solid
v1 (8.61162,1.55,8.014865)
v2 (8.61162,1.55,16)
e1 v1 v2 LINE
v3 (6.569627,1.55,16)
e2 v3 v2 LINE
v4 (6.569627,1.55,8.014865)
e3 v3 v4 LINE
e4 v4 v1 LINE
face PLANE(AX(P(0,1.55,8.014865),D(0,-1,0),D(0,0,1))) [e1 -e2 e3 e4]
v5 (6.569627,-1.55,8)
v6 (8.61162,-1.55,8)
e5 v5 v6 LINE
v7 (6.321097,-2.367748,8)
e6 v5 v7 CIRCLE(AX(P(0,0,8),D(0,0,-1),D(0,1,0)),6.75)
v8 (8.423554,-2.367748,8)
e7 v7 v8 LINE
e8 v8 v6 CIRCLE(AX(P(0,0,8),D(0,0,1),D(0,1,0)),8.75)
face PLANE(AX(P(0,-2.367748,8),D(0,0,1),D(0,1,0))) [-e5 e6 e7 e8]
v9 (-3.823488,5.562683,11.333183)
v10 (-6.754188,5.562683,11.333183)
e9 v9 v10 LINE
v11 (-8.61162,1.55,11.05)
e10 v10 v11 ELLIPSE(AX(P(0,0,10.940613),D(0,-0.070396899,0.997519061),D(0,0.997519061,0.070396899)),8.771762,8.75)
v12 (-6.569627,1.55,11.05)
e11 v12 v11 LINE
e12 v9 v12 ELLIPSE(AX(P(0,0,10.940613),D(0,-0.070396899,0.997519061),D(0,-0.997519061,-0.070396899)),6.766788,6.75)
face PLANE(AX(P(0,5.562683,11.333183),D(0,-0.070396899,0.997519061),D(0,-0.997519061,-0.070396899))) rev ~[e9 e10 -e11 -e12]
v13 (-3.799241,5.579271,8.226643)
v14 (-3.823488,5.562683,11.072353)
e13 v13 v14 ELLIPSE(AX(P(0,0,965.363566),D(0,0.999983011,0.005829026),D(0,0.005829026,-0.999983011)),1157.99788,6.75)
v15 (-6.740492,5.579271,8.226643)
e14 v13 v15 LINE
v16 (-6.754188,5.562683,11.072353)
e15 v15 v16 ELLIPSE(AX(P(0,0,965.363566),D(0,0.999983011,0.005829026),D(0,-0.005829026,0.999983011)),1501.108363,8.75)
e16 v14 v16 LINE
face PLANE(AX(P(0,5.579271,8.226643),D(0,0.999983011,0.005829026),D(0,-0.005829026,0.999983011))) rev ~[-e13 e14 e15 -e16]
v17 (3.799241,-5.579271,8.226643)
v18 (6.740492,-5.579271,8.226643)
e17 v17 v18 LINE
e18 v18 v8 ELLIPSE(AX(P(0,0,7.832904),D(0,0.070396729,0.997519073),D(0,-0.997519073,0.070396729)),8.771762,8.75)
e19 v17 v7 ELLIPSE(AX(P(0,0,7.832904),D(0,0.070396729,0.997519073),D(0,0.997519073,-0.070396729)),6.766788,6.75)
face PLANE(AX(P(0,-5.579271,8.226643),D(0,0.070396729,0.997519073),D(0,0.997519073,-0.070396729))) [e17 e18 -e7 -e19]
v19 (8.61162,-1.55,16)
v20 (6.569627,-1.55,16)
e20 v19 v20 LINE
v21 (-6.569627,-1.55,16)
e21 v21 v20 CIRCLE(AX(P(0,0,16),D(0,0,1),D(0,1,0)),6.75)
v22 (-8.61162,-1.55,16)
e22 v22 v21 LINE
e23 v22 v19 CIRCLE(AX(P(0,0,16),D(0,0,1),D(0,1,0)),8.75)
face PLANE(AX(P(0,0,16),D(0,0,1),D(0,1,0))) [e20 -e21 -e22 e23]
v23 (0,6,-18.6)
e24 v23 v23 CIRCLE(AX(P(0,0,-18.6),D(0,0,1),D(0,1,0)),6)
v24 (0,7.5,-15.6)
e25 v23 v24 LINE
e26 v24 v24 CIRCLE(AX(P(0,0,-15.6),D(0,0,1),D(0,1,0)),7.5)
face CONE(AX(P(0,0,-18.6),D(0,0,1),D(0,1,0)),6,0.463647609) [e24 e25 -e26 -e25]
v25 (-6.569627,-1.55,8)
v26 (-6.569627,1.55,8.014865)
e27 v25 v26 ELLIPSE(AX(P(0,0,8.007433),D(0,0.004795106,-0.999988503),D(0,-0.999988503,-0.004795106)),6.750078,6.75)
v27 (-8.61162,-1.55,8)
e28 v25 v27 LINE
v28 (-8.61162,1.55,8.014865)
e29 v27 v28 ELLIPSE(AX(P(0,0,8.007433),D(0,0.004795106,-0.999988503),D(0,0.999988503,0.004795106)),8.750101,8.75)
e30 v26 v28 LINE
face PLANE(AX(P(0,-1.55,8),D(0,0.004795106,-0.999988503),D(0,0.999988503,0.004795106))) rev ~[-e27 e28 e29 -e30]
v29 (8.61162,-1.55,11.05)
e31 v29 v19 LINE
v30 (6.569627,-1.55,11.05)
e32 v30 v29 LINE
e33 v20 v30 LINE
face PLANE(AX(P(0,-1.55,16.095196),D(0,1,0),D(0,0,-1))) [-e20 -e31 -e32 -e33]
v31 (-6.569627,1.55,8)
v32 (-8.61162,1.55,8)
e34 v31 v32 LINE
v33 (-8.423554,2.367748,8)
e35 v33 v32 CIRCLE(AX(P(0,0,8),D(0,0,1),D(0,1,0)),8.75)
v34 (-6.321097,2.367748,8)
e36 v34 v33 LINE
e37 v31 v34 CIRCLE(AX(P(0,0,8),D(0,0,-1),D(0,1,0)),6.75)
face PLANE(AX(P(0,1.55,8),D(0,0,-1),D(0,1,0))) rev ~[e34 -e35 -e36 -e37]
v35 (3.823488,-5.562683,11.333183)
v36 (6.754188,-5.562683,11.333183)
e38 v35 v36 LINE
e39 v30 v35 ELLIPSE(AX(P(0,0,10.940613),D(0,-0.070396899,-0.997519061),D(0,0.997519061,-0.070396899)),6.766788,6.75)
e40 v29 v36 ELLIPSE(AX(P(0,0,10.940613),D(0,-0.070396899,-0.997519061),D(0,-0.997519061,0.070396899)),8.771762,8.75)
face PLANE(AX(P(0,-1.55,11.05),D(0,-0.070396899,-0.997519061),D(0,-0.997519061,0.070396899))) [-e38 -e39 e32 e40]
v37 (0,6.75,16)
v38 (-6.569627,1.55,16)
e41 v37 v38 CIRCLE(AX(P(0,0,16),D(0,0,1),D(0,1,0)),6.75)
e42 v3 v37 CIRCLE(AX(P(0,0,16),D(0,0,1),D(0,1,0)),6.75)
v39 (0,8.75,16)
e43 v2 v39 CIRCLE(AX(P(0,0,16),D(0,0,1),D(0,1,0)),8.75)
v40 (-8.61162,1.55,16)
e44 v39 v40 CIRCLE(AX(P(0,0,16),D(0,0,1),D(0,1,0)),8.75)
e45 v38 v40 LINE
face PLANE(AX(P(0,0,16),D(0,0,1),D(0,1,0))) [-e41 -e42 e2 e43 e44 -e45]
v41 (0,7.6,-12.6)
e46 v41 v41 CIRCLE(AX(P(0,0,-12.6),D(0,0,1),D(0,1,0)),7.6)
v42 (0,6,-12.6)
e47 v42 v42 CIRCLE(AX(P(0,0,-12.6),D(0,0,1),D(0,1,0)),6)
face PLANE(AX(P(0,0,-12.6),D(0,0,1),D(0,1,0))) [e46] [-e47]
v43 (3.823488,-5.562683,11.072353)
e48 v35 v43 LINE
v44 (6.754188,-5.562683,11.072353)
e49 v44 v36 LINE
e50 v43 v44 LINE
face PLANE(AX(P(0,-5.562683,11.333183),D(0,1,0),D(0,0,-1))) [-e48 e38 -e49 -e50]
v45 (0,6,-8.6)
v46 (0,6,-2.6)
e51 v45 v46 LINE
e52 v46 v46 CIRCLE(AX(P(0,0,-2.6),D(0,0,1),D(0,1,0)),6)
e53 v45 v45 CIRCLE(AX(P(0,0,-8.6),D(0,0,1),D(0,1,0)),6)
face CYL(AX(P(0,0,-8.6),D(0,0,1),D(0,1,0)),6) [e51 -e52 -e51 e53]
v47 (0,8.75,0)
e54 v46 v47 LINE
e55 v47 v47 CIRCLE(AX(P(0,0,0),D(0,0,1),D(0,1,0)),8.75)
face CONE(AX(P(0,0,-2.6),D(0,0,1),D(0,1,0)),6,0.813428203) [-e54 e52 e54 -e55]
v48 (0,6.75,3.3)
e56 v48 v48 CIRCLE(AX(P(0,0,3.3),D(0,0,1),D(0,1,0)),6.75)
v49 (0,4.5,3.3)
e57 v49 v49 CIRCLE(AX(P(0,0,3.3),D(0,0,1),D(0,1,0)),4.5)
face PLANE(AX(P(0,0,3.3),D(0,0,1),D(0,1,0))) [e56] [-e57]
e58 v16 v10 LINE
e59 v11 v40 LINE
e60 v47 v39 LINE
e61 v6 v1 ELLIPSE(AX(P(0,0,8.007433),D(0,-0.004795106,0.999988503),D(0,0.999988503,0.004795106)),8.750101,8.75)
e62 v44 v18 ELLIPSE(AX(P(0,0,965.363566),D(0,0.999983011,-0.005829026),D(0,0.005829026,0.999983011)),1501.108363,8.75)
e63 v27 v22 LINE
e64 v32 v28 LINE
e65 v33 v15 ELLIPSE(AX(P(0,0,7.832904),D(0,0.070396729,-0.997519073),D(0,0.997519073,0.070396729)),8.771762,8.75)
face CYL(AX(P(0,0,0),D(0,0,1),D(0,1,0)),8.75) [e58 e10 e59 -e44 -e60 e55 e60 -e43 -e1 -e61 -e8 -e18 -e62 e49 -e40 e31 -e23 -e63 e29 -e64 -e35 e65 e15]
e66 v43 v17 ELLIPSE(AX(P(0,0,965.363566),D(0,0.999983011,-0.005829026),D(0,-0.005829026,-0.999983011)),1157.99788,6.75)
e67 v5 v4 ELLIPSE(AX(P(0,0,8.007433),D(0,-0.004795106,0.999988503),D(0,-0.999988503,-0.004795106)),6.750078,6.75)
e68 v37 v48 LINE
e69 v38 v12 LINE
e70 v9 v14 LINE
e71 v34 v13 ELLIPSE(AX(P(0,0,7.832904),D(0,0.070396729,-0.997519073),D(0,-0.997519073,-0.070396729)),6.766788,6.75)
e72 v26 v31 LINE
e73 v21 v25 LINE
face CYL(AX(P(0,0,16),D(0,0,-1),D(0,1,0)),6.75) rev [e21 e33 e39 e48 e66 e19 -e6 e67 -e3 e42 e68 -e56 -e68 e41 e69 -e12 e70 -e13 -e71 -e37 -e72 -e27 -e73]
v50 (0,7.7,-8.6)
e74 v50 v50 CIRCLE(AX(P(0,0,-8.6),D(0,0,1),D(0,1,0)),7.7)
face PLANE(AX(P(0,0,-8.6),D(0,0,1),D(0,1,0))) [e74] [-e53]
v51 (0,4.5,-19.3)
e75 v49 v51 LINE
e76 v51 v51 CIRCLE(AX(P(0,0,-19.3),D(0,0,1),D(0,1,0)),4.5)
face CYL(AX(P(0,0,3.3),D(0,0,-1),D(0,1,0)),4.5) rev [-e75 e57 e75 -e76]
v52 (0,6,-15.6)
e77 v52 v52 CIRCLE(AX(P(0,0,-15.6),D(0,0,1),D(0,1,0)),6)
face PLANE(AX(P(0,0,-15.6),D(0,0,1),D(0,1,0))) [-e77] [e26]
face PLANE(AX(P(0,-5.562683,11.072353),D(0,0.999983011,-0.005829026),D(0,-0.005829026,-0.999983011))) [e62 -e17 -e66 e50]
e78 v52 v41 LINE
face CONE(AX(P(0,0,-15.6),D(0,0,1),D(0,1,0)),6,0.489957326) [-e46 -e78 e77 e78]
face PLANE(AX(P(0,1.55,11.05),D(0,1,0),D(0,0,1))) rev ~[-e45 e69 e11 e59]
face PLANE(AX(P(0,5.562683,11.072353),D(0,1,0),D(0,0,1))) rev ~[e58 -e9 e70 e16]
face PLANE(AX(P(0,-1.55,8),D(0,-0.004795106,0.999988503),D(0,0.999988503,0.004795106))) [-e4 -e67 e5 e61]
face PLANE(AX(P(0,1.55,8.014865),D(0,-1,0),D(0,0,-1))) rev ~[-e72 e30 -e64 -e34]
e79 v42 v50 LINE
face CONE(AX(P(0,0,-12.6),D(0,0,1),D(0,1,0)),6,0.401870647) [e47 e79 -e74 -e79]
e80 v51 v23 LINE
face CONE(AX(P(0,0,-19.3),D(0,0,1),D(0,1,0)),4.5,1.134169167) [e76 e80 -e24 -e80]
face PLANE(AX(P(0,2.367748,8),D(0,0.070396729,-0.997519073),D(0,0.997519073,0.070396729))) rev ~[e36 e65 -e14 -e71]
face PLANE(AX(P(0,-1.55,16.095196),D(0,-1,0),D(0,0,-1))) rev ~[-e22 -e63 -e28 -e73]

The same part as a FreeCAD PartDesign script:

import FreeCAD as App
import Part
import Sketcher


def add_polygon(sketch, points):
    """Adds a closed chain of lines whose ends are joined by coincident constraints."""
    first, n = sketch.GeometryCount, len(points)
    for a, b in zip(points, points[1:] + points[:1]):
        sketch.addGeometry(Part.LineSegment(App.Vector(*a, 0), App.Vector(*b, 0)), False)
    for i in range(n):
        sketch.addConstraint(Sketcher.Constraint("Coincident", first + i, 2, first + (i + 1) % n, 1))

doc = App.newDocument("Part")
body = doc.addObject("PartDesign::Body", "Body")

sketch1 = doc.addObject("Sketcher::SketchObject", "Sketch")
body.addObject(sketch1)
sketch1.AttachmentSupport = (doc.YZ_Plane, [""])
sketch1.MapMode = "FlatFace"
add_polygon(sketch1, [(6.8, 16), (6.8, 3.3), (4.5, 3.3), (4.5, -19.3), (6, -18.6), (7.5, -15.6), (6, -15.6), (7.6, -12.6), (6, -12.6), (7.7, -8.6), (6, -8.6), (6, -2.6), (8.8, 0), (8.8, 16)])
sketch1.addConstraint([
    Sketcher.Constraint("Vertical", 0),
    Sketcher.Constraint("Horizontal", 1),
    Sketcher.Constraint("Vertical", 2),
    Sketcher.Constraint("Horizontal", 5),
    Sketcher.Constraint("Horizontal", 7),
    Sketcher.Constraint("Horizontal", 9),
    Sketcher.Constraint("Vertical", 10),
    Sketcher.Constraint("Vertical", 12),
    Sketcher.Constraint("Horizontal", 13),
    Sketcher.Constraint("PointOnObject", 11, 2, -1),
    Sketcher.Constraint("Vertical", 3, 2, 5, 2),
    Sketcher.Constraint("Vertical", 5, 2, 7, 2),
    Sketcher.Constraint("Vertical", 7, 2, 9, 2),
    Sketcher.Constraint("DistanceX", 13, 2, 13, 1, 2.0),
    Sketcher.Constraint("DistanceY", 10, 1, 10, 2, 6.0),
    Sketcher.Constraint("DistanceY", 12, 1, 12, 2, 16.0),
    Sketcher.Constraint("DistanceX", 5, 2, 5, 1, 1.5),
    Sketcher.Constraint("DistanceX", 7, 2, 7, 1, 1.6),
    Sketcher.Constraint("DistanceX", 9, 2, 9, 1, 1.7),
    Sketcher.Constraint("DistanceY", 0, 2, 0, 1, 12.7),
    Sketcher.Constraint("DistanceY", 2, 2, 2, 1, 22.6),
    Sketcher.Constraint("DistanceX", -1, 1, 3, 2, 6.0),
    Sketcher.Constraint("DistanceY", 3, 2, 4, 2, 3.0),
    Sketcher.Constraint("DistanceX", 2, 2, 4, 2, 3.0),
    Sketcher.Constraint("DistanceY", 4, 2, 6, 2, 3.0),
    Sketcher.Constraint("DistanceY", 6, 2, 8, 2, 4.0),
    Sketcher.Constraint("DistanceX", 1, 2, 1, 1, 2.25),
    Sketcher.Constraint("DistanceY", 3, 2, -1, 1, 18.6),
])
revolution = doc.addObject("PartDesign::Revolution", "Revolution")
body.addObject(revolution)
revolution.Profile = sketch1
revolution.ReferenceAxis = (sketch1, ["V_Axis"])
revolution.Angle = 360

sketch2 = doc.addObject("Sketcher::SketchObject", "Sketch001")
body.addObject(sketch2)
sketch2.AttachmentSupport = (doc.YZ_Plane, [""])
sketch2.MapMode = "FlatFace"
add_polygon(sketch2, [(-1.55, 8), (1.55, 8.014865), (1.55, 16.095196), (-1.55, 16.095196), (-1.55, 11.05), (-5.562683, 11.333183), (-5.562683, 11.072353), (-5.579271, 8.226643), (-2.367748, 8)])
sketch2.addConstraint([
    Sketcher.Constraint("Vertical", 1),
    Sketcher.Constraint("Horizontal", 2),
    Sketcher.Constraint("Vertical", 3),
    Sketcher.Constraint("Vertical", 5),
    Sketcher.Constraint("Horizontal", 8),
    Sketcher.Constraint("DistanceX", 2, 2, 2, 1, 3.1),
    Sketcher.Constraint("DistanceY", -1, 1, 7, 2, 8.0),
    Sketcher.Constraint("DistanceX", 8, 2, 0, 2, 3.1),
    Sketcher.Constraint("DistanceX", -1, 1, 0, 2, 1.55),
    Sketcher.Constraint("DistanceY", -1, 1, 3, 2, 11.05),
    Sketcher.Constraint("DistanceX", 8, 1, 8, 2, 0.817748),
    Sketcher.Constraint("DistanceY", 1, 1, 1, 2, 8.080331),
    Sketcher.Constraint("DistanceY", 5, 2, 5, 1, 0.26083),
    Sketcher.Constraint("Distance", 6, 2.845758),
    Sketcher.Constraint("Distance", 7, 3.21951),
    Sketcher.Constraint("DistanceY", 3, 2, 3, 1, 5.045196),
    Sketcher.Constraint("DistanceX", 6, 2, -1, 1, 5.579271),
    Sketcher.Constraint("DistanceX", 6, 2, 5, 2, 0.016588),
])
pocket1 = doc.addObject("PartDesign::Pocket", "Pocket")
body.addObject(pocket1)
pocket1.Profile = sketch2
pocket1.Length = 25
pocket1.Reversed = True

sketch3 = doc.addObject("Sketcher::SketchObject", "Sketch002")
body.addObject(sketch3)
sketch3.AttachmentSupport = (doc.YZ_Plane, [""])
sketch3.MapMode = "FlatFace"
add_polygon(sketch3, [(1.55, 8.014865), (1.55, 8), (2.367748, 8), (5.579271, 8.226643), (5.562683, 11.072353), (5.562683, 11.333183), (1.55, 11.05), (1.55, 16.095196), (-1.55, 16.095196), (-1.55, 8)])
sketch3.addConstraint([
    Sketcher.Constraint("Vertical", 0),
    Sketcher.Constraint("Horizontal", 1),
    Sketcher.Constraint("Vertical", 4),
    Sketcher.Constraint("Vertical", 6),
    Sketcher.Constraint("Horizontal", 7),
    Sketcher.Constraint("Vertical", 8),
    Sketcher.Constraint("DistanceX", 7, 2, 7, 1, 3.1),
    Sketcher.Constraint("DistanceY", -1, 1, 0, 2, 8.0),
    Sketcher.Constraint("DistanceY", -1, 1, 8, 2, 8.0),
    Sketcher.Constraint("DistanceX", 7, 2, 0, 2, 3.1),
    Sketcher.Constraint("DistanceX", -1, 1, 0, 2, 1.55),
    Sketcher.Constraint("DistanceY", -1, 1, 5, 2, 11.05),
    Sketcher.Constraint("DistanceX", 1, 1, 1, 2, 0.817748),
    Sketcher.Constraint("DistanceY", 4, 1, 4, 2, 0.26083),
    Sketcher.Constraint("Distance", 2, 3.21951),
    Sketcher.Constraint("Distance", 3, 2.845758),
    Sketcher.Constraint("DistanceY", 0, 2, 0, 1, 0.014865),
    Sketcher.Constraint("DistanceY", 6, 1, 6, 2, 5.045196),
    Sketcher.Constraint("DistanceX", -1, 1, 2, 2, 5.579271),
    Sketcher.Constraint("DistanceX", 3, 2, 2, 2, 0.016588),
])
pocket2 = doc.addObject("PartDesign::Pocket", "Pocket001")
body.addObject(pocket2)
pocket2.Profile = sketch3
pocket2.Length = 25

doc.recompute()
